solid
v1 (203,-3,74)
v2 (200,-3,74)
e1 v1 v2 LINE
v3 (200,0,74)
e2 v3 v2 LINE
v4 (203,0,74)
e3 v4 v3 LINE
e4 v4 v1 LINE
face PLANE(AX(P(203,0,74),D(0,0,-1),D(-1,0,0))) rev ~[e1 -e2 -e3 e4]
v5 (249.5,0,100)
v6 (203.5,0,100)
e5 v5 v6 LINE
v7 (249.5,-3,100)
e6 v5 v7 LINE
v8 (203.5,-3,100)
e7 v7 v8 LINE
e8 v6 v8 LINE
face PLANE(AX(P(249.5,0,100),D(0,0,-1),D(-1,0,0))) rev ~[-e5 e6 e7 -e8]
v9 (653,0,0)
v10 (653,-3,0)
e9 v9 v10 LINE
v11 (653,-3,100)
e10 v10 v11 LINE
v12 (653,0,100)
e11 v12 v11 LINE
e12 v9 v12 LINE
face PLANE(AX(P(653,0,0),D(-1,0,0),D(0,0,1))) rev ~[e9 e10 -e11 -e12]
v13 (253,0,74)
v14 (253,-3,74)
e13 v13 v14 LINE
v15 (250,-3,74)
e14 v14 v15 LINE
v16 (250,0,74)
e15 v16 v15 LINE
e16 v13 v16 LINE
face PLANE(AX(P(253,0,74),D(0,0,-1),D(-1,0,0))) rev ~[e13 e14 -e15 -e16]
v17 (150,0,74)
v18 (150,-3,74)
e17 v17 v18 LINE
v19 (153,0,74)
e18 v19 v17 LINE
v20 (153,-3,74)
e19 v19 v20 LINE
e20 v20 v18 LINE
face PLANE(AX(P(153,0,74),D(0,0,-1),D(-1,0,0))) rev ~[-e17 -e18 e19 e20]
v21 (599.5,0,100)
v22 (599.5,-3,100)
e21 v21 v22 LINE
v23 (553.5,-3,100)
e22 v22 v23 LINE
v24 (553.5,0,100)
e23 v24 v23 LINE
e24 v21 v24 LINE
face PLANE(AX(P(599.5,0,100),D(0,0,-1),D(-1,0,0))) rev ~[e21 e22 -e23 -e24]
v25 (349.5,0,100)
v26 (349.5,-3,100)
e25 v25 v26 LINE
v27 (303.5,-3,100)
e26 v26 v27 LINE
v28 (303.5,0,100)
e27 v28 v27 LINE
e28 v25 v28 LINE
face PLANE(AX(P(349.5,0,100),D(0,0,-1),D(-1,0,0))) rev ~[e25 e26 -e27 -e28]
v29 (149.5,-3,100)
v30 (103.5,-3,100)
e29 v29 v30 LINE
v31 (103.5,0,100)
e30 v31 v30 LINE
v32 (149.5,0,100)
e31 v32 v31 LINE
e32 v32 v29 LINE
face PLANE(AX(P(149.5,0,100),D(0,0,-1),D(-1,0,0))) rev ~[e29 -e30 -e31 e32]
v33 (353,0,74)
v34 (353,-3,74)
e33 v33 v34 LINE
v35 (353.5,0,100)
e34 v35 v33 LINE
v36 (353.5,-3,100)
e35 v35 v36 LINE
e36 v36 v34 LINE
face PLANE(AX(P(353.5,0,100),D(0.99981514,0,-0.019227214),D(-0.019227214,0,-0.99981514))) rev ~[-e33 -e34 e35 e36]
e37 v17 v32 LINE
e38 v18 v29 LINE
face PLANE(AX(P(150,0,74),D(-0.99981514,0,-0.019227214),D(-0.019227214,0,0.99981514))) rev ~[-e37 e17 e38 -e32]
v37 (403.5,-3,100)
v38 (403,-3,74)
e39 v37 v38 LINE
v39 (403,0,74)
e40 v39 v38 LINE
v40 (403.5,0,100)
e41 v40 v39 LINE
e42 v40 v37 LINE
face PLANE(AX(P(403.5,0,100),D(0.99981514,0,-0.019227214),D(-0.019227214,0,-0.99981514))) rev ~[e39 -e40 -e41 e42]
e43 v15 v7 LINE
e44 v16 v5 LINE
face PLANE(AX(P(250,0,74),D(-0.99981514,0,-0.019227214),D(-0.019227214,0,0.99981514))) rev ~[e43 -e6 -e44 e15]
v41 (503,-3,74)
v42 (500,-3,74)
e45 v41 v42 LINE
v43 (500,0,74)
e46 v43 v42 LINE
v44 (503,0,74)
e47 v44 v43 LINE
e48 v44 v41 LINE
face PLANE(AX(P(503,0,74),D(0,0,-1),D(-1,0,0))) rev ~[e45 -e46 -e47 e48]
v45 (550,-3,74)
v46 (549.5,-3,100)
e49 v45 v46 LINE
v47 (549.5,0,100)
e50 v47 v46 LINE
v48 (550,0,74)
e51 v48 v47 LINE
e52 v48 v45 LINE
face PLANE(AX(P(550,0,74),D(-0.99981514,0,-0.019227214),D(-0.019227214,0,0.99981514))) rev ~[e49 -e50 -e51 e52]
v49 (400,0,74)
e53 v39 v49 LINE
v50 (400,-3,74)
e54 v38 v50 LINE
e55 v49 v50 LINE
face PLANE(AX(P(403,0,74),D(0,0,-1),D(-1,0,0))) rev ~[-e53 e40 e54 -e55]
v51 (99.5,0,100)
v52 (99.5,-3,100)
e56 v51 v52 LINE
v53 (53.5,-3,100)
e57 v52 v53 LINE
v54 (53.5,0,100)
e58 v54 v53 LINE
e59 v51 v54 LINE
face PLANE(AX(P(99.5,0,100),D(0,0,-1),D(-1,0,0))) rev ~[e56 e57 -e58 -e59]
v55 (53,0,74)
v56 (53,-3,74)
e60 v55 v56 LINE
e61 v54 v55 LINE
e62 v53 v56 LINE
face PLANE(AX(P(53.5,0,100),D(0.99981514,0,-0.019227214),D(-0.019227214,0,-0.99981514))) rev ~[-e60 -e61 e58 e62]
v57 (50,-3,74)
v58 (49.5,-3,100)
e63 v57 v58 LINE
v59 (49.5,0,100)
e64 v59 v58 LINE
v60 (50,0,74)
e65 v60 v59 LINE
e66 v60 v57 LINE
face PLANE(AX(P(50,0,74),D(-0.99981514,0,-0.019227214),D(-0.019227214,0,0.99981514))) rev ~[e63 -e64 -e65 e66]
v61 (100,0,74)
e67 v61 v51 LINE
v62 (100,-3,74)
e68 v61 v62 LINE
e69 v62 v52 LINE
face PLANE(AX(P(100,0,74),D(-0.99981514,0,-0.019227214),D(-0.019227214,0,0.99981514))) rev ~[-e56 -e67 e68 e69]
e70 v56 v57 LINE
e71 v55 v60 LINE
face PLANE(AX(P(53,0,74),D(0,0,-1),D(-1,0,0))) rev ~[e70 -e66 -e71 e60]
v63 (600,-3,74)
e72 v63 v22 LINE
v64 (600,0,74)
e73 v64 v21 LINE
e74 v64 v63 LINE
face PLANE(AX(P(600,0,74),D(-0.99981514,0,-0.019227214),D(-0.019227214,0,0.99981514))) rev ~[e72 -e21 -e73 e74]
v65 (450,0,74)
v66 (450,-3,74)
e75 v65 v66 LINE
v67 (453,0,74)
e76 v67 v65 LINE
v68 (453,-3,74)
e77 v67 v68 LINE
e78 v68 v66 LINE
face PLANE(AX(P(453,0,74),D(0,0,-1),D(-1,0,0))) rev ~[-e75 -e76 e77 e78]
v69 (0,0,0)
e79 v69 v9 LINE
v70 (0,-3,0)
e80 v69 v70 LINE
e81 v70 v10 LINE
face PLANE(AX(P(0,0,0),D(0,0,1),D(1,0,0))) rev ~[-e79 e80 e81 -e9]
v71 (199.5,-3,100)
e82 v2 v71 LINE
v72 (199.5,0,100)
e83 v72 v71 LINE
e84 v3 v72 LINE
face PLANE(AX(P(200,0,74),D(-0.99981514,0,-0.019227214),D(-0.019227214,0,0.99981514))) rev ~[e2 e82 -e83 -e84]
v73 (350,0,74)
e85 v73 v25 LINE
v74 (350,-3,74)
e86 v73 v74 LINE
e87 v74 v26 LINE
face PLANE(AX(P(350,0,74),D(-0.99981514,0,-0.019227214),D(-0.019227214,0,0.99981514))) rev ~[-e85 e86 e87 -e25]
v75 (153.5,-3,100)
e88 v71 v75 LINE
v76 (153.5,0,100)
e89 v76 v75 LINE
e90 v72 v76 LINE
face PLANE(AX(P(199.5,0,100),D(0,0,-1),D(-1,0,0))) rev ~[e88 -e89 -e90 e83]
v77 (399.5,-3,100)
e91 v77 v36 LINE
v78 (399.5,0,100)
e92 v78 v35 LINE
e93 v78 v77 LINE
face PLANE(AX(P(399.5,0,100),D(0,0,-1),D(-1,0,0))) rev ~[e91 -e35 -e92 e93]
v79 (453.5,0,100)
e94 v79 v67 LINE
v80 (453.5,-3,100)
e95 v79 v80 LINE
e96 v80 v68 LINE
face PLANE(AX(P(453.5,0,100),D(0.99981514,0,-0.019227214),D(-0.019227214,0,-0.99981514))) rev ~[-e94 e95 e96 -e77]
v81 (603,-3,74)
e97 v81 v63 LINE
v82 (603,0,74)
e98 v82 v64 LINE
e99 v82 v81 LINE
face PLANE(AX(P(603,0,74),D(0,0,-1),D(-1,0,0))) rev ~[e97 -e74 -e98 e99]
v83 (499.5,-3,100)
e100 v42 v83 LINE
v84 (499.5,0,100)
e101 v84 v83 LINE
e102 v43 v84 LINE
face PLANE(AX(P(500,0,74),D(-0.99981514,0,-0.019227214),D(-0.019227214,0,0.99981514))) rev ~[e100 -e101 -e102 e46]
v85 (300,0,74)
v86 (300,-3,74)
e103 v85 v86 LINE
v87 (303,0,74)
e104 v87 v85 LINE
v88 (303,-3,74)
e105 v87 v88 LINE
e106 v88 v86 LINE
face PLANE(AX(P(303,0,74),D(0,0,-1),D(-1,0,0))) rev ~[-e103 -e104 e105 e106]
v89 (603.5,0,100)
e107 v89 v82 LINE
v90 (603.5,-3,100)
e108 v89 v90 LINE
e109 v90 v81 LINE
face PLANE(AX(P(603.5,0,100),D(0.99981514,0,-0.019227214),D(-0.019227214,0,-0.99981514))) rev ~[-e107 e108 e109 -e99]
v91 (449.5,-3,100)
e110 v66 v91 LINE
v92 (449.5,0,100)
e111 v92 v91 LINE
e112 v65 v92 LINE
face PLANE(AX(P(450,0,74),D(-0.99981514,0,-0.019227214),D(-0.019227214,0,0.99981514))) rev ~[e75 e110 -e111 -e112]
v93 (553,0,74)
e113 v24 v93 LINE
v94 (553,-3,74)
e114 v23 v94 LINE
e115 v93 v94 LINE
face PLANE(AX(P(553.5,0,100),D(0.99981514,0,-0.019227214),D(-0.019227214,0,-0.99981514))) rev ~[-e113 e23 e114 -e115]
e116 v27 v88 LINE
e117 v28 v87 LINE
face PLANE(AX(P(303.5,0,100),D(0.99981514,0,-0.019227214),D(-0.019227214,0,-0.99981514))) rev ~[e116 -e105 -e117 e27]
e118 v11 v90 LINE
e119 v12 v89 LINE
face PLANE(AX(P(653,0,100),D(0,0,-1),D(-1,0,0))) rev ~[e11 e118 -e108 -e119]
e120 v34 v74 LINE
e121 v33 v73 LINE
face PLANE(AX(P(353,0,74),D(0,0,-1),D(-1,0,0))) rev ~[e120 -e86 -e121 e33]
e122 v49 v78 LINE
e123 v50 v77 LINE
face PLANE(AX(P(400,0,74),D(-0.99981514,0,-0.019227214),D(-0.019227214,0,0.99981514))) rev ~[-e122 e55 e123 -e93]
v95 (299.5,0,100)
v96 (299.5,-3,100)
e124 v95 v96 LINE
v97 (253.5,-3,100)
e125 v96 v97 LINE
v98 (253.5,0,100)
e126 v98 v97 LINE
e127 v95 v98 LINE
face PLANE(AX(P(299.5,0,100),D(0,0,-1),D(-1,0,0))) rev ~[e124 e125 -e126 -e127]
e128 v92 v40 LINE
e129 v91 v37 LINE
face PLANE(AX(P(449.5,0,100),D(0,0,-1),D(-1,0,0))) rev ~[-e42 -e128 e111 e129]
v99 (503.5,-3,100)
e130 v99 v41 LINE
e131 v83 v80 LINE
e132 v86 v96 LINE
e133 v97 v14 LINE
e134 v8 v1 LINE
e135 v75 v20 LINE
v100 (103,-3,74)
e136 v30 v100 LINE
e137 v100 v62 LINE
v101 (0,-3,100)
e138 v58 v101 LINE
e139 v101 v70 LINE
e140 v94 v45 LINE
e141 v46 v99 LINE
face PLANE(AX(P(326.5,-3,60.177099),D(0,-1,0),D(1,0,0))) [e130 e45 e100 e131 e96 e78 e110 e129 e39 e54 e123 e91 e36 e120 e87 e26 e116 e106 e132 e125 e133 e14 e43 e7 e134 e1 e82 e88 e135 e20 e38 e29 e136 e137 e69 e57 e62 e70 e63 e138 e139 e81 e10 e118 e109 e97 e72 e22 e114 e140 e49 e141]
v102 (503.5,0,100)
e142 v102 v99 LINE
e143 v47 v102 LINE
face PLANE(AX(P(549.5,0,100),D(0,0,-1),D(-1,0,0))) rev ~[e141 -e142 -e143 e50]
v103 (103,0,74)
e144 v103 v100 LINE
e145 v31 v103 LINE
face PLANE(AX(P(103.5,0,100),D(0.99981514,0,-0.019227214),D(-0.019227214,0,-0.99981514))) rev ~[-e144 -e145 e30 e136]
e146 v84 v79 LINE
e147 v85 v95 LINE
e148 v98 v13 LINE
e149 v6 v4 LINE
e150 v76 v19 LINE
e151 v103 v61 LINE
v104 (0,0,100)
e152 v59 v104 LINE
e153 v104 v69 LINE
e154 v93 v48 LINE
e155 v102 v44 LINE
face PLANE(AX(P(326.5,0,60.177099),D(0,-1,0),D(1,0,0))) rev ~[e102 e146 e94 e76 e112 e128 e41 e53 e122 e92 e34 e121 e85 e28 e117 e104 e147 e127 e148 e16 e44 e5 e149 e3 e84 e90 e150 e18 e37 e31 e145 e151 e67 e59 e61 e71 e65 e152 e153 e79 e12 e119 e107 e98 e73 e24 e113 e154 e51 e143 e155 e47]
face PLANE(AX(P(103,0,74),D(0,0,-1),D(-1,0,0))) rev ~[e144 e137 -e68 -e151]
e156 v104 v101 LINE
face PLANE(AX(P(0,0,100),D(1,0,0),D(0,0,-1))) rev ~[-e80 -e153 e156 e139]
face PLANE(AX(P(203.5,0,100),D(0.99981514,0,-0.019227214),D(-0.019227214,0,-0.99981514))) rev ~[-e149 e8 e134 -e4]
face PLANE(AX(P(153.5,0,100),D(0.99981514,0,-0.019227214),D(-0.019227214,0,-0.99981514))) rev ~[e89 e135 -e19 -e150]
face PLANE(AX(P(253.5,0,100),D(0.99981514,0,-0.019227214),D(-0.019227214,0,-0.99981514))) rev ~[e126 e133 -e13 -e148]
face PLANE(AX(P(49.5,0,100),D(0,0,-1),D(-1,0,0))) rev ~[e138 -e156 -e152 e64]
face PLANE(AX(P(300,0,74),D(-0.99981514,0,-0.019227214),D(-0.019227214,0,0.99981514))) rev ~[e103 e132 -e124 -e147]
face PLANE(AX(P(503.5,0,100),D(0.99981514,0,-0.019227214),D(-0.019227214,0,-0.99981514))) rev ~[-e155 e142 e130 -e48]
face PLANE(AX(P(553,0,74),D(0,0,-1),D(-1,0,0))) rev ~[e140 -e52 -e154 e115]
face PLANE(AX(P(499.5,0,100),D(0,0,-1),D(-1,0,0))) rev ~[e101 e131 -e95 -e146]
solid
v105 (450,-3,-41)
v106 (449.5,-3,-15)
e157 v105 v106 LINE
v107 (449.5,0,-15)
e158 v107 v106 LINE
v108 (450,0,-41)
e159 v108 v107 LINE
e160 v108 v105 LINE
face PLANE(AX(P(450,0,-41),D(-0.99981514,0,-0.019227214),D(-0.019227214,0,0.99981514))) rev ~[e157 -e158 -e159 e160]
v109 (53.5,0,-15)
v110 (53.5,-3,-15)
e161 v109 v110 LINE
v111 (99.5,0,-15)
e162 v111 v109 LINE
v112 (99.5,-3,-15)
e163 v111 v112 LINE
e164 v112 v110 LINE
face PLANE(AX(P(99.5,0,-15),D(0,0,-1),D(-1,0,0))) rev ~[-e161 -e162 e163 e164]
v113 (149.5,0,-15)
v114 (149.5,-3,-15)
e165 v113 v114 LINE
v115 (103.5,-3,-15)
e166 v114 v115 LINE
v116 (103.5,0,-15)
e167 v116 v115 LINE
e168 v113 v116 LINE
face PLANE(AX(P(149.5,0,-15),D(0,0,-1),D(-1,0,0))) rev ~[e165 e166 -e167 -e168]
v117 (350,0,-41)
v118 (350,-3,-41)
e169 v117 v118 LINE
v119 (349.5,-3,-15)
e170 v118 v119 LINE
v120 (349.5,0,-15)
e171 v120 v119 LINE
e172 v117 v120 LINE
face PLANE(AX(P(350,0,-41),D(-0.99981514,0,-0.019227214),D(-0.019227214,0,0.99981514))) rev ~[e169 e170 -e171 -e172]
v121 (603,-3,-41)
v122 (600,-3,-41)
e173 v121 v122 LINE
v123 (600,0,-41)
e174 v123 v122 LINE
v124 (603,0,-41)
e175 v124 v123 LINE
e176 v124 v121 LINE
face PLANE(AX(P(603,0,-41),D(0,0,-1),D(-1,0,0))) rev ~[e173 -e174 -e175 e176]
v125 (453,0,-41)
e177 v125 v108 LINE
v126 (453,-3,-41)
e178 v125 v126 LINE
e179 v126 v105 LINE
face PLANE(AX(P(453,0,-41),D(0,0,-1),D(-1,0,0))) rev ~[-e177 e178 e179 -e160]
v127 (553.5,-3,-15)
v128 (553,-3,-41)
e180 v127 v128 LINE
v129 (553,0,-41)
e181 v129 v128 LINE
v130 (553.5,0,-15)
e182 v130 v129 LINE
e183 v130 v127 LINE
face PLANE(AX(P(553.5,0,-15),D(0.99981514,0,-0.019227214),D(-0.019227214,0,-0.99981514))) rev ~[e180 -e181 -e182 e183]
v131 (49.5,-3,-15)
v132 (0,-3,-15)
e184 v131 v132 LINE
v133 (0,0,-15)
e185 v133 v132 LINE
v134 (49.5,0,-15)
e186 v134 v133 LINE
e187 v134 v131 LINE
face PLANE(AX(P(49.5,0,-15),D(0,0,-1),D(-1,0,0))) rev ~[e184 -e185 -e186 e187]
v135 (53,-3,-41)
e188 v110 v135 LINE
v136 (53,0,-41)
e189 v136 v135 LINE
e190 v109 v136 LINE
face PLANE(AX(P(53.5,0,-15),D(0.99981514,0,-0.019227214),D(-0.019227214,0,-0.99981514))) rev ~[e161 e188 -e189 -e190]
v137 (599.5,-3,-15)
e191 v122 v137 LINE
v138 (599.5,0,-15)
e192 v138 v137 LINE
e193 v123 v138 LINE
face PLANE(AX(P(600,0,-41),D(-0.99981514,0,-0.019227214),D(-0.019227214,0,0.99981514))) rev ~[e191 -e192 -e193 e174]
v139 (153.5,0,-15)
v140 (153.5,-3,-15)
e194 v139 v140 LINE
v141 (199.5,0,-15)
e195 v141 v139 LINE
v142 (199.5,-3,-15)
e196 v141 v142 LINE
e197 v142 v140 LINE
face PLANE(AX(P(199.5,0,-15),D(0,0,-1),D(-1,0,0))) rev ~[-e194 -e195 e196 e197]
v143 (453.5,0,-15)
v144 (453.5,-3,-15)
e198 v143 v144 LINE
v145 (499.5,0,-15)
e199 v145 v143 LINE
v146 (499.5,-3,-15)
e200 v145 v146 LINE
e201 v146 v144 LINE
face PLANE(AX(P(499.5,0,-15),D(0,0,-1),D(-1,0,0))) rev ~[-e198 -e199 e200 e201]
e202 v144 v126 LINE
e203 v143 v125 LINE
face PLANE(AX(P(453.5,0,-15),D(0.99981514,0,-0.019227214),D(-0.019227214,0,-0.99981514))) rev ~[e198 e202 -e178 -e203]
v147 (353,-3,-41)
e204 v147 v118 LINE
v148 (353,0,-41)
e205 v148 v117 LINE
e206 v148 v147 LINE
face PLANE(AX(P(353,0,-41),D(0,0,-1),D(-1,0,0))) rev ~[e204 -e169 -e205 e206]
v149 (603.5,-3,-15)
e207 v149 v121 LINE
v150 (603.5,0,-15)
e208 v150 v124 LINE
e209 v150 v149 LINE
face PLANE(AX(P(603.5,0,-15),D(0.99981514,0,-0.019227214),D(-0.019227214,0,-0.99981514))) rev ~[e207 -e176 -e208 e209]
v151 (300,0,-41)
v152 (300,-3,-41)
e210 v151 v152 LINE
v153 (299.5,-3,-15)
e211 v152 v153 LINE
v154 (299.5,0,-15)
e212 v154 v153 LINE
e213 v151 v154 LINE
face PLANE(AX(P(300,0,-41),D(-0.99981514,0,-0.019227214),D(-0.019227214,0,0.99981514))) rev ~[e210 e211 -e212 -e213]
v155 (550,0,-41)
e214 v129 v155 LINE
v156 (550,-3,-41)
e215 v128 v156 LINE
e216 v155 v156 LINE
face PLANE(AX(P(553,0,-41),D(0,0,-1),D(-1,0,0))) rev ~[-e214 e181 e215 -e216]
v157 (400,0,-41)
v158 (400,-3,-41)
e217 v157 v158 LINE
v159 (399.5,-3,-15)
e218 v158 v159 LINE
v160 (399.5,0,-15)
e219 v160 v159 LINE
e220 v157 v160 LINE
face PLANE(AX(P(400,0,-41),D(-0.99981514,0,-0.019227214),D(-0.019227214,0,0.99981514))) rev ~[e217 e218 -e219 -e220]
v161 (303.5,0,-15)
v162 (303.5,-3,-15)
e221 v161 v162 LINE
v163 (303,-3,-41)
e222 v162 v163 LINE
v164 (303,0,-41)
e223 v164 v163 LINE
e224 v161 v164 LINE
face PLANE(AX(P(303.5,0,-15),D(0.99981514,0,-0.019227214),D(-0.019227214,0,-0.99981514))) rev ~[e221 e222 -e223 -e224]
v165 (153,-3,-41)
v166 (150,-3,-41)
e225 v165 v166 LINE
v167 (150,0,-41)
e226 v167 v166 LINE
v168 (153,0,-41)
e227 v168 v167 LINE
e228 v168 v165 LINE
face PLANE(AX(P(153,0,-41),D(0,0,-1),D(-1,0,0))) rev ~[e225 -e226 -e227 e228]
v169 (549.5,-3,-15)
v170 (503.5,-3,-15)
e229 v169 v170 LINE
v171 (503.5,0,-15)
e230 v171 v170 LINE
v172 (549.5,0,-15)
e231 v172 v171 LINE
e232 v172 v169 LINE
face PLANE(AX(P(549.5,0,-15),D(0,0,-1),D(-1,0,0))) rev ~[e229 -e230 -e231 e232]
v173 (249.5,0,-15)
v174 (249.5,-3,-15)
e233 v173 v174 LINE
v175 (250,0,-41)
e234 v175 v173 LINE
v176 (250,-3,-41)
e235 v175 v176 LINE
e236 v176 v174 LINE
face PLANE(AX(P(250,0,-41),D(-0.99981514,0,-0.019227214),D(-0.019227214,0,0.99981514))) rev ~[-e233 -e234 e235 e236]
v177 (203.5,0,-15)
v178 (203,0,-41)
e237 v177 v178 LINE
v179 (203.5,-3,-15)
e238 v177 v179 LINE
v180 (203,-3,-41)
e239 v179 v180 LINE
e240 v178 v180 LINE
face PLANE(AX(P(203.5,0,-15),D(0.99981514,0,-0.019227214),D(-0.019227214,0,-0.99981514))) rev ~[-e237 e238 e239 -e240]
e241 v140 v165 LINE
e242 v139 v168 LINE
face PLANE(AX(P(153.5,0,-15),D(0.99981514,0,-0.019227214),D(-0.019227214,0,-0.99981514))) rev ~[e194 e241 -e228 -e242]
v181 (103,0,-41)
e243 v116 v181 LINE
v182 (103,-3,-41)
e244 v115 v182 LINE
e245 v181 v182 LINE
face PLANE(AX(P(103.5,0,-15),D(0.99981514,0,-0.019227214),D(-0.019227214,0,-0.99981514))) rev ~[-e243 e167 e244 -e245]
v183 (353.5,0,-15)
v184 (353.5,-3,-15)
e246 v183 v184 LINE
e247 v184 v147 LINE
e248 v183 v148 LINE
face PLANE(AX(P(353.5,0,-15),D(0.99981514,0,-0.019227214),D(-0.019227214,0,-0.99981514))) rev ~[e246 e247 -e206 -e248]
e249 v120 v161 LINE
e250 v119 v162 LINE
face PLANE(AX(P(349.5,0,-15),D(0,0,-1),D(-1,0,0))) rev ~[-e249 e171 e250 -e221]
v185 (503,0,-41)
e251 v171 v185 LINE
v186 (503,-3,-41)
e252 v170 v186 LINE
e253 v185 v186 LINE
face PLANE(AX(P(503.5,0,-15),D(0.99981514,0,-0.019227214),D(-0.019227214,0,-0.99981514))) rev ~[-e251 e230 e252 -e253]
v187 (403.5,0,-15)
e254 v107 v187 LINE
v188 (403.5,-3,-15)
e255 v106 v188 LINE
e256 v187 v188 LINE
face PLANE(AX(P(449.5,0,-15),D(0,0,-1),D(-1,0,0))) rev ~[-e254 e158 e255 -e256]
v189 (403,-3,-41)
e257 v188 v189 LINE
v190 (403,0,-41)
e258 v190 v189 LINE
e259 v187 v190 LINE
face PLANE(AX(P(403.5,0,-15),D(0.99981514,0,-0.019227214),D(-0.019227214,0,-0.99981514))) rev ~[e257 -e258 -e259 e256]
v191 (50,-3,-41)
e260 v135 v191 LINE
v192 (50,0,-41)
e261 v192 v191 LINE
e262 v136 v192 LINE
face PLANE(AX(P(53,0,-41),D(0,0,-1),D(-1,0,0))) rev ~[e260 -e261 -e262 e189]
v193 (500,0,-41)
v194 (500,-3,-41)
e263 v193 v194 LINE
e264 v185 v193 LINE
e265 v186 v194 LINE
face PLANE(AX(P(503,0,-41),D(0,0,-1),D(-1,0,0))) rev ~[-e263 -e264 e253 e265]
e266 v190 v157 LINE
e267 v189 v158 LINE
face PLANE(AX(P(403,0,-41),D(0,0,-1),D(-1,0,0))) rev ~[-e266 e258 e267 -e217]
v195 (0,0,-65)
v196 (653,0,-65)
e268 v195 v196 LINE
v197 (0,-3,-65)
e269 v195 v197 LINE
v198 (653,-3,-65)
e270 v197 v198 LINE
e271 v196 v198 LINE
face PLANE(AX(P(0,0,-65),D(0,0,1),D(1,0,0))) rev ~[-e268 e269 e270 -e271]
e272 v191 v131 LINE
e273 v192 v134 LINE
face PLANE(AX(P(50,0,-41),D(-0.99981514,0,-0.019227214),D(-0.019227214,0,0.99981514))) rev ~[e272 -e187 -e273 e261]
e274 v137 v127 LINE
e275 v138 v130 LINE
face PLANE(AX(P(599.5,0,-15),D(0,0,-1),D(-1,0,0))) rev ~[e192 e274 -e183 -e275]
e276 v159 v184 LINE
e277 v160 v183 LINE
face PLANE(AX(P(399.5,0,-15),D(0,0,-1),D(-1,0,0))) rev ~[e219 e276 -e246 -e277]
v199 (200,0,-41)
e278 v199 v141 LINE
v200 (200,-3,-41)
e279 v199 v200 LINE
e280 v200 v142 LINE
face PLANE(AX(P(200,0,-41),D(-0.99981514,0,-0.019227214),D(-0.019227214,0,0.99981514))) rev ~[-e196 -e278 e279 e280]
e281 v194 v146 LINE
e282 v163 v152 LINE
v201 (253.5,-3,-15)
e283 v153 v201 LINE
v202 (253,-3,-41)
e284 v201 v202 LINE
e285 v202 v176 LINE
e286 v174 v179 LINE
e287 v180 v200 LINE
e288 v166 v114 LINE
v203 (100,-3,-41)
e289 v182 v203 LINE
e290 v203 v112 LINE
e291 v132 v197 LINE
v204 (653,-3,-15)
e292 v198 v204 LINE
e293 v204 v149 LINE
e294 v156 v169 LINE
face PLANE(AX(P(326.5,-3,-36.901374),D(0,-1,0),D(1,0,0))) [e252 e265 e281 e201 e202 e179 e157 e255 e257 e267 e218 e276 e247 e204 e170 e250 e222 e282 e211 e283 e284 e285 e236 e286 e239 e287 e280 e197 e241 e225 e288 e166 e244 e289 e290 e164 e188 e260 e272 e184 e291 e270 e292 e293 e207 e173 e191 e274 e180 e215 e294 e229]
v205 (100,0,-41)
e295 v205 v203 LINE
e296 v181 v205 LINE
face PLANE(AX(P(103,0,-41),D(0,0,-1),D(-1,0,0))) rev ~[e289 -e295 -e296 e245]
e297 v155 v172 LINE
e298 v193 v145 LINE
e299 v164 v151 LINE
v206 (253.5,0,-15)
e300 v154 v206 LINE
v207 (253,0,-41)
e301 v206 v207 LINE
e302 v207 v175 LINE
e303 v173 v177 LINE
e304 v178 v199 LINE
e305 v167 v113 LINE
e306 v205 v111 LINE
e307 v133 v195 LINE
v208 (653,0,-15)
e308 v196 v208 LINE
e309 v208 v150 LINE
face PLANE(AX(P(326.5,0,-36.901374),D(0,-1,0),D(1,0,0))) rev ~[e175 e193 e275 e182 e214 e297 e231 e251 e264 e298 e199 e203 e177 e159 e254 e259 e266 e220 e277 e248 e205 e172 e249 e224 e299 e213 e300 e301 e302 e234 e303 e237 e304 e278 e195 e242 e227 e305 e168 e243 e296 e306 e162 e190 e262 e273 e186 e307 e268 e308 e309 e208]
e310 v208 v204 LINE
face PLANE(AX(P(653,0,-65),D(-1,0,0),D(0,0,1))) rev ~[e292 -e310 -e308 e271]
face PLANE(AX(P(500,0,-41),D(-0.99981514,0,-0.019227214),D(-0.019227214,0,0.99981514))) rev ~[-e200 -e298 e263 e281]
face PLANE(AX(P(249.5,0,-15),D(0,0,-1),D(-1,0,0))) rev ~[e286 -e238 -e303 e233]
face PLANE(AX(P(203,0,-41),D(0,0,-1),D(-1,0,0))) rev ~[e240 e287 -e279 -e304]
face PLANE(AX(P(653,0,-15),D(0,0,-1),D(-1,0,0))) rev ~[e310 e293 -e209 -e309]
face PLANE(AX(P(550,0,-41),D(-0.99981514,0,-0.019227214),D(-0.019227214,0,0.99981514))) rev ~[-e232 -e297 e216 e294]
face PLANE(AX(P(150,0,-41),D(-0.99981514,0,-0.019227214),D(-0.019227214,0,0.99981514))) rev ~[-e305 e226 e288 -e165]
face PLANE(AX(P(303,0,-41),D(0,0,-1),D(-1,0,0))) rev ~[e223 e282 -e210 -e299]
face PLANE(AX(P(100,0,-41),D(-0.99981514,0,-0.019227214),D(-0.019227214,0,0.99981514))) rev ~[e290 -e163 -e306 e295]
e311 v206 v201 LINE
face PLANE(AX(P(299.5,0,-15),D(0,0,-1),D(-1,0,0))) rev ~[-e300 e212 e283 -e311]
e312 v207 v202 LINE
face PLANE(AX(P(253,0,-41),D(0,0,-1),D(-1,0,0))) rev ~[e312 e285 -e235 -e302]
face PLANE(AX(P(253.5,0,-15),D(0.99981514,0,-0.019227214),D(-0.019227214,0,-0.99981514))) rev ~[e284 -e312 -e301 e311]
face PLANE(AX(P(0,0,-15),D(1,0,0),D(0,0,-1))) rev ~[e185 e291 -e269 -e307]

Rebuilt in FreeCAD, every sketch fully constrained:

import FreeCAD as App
import Part
import Sketcher

V = App.Vector
Q = App.Units.Quantity

doc = App.newDocument("Part")
body = doc.addObject("PartDesign::Body", "Body")

sketch1 = body.newObject("Sketcher::SketchObject", "Sketch")
sketch1.AttachmentSupport = (doc.getObject("XZ_Plane"), [""])
sketch1.MapMode = "FlatFace"
sketch1.addGeometry(Part.LineSegment(V(0, 100, 0), V(0, 0, 0)), False)
sketch1.addGeometry(Part.LineSegment(V(0, 0, 0), V(653, 0, 0)), False)
sketch1.addGeometry(Part.LineSegment(V(653, 0, 0), V(653, 100, 0)), False)
sketch1.addGeometry(Part.LineSegment(V(653, 100, 0), V(603.5, 100, 0)), False)
sketch1.addGeometry(Part.LineSegment(V(603.5, 100, 0), V(603, 74, 0)), False)
sketch1.addGeometry(Part.LineSegment(V(603, 74, 0), V(600, 74, 0)), False)
sketch1.addGeometry(Part.LineSegment(V(600, 74, 0), V(599.5, 100, 0)), False)
sketch1.addGeometry(Part.LineSegment(V(599.5, 100, 0), V(553.5, 100, 0)), False)
sketch1.addGeometry(Part.LineSegment(V(553.5, 100, 0), V(553, 74, 0)), False)
sketch1.addGeometry(Part.LineSegment(V(553, 74, 0), V(550, 74, 0)), False)
sketch1.addGeometry(Part.LineSegment(V(550, 74, 0), V(549.5, 100, 0)), False)
sketch1.addGeometry(Part.LineSegment(V(549.5, 100, 0), V(503.5, 100, 0)), False)
sketch1.addGeometry(Part.LineSegment(V(503.5, 100, 0), V(503, 74, 0)), False)
sketch1.addGeometry(Part.LineSegment(V(503, 74, 0), V(500, 74, 0)), False)
sketch1.addGeometry(Part.LineSegment(V(500, 74, 0), V(499.5, 100, 0)), False)
sketch1.addGeometry(Part.LineSegment(V(499.5, 100, 0), V(453.5, 100, 0)), False)
sketch1.addGeometry(Part.LineSegment(V(453.5, 100, 0), V(453, 74, 0)), False)
sketch1.addGeometry(Part.LineSegment(V(453, 74, 0), V(450, 74, 0)), False)
sketch1.addGeometry(Part.LineSegment(V(450, 74, 0), V(449.5, 100, 0)), False)
sketch1.addGeometry(Part.LineSegment(V(449.5, 100, 0), V(403.5, 100, 0)), False)
sketch1.addGeometry(Part.LineSegment(V(403.5, 100, 0), V(403, 74, 0)), False)
sketch1.addGeometry(Part.LineSegment(V(403, 74, 0), V(400, 74, 0)), False)
sketch1.addGeometry(Part.LineSegment(V(400, 74, 0), V(399.5, 100, 0)), False)
sketch1.addGeometry(Part.LineSegment(V(399.5, 100, 0), V(353.5, 100, 0)), False)
sketch1.addGeometry(Part.LineSegment(V(353.5, 100, 0), V(353, 74, 0)), False)
sketch1.addGeometry(Part.LineSegment(V(353, 74, 0), V(350, 74, 0)), False)
sketch1.addGeometry(Part.LineSegment(V(350, 74, 0), V(349.5, 100, 0)), False)
sketch1.addGeometry(Part.LineSegment(V(349.5, 100, 0), V(303.5, 100, 0)), False)
sketch1.addGeometry(Part.LineSegment(V(303.5, 100, 0), V(303, 74, 0)), False)
sketch1.addGeometry(Part.LineSegment(V(303, 74, 0), V(300, 74, 0)), False)
sketch1.addGeometry(Part.LineSegment(V(300, 74, 0), V(299.5, 100, 0)), False)
sketch1.addGeometry(Part.LineSegment(V(299.5, 100, 0), V(253.5, 100, 0)), False)
sketch1.addGeometry(Part.LineSegment(V(253.5, 100, 0), V(253, 74, 0)), False)
sketch1.addGeometry(Part.LineSegment(V(253, 74, 0), V(250, 74, 0)), False)
sketch1.addGeometry(Part.LineSegment(V(250, 74, 0), V(249.5, 100, 0)), False)
sketch1.addGeometry(Part.LineSegment(V(249.5, 100, 0), V(203.5, 100, 0)), False)
sketch1.addGeometry(Part.LineSegment(V(203.5, 100, 0), V(203, 74, 0)), False)
sketch1.addGeometry(Part.LineSegment(V(203, 74, 0), V(200, 74, 0)), False)
sketch1.addGeometry(Part.LineSegment(V(200, 74, 0), V(199.5, 100, 0)), False)
sketch1.addGeometry(Part.LineSegment(V(199.5, 100, 0), V(153.5, 100, 0)), False)
sketch1.addGeometry(Part.LineSegment(V(153.5, 100, 0), V(153, 74, 0)), False)
sketch1.addGeometry(Part.LineSegment(V(153, 74, 0), V(150, 74, 0)), False)
sketch1.addGeometry(Part.LineSegment(V(150, 74, 0), V(149.5, 100, 0)), False)
sketch1.addGeometry(Part.LineSegment(V(149.5, 100, 0), V(103.5, 100, 0)), False)
sketch1.addGeometry(Part.LineSegment(V(103.5, 100, 0), V(103, 74, 0)), False)
sketch1.addGeometry(Part.LineSegment(V(103, 74, 0), V(100, 74, 0)), False)
sketch1.addGeometry(Part.LineSegment(V(100, 74, 0), V(99.5, 100, 0)), False)
sketch1.addGeometry(Part.LineSegment(V(99.5, 100, 0), V(53.5, 100, 0)), False)
sketch1.addGeometry(Part.LineSegment(V(53.5, 100, 0), V(53, 74, 0)), False)
sketch1.addGeometry(Part.LineSegment(V(53, 74, 0), V(50, 74, 0)), False)
sketch1.addGeometry(Part.LineSegment(V(50, 74, 0), V(49.5, 100, 0)), False)
sketch1.addGeometry(Part.LineSegment(V(49.5, 100, 0), V(0, 100, 0)), False)
sketch1.addConstraint(Sketcher.Constraint("Coincident", 0, 2, 1, 1))
sketch1.addConstraint(Sketcher.Constraint("Coincident", 1, 2, 2, 1))
sketch1.addConstraint(Sketcher.Constraint("Coincident", 2, 2, 3, 1))
sketch1.addConstraint(Sketcher.Constraint("Coincident", 3, 2, 4, 1))
sketch1.addConstraint(Sketcher.Constraint("Coincident", 4, 2, 5, 1))
sketch1.addConstraint(Sketcher.Constraint("Coincident", 5, 2, 6, 1))
sketch1.addConstraint(Sketcher.Constraint("Coincident", 6, 2, 7, 1))
sketch1.addConstraint(Sketcher.Constraint("Coincident", 7, 2, 8, 1))
sketch1.addConstraint(Sketcher.Constraint("Coincident", 8, 2, 9, 1))
sketch1.addConstraint(Sketcher.Constraint("Coincident", 9, 2, 10, 1))
sketch1.addConstraint(Sketcher.Constraint("Coincident", 10, 2, 11, 1))
sketch1.addConstraint(Sketcher.Constraint("Coincident", 11, 2, 12, 1))
sketch1.addConstraint(Sketcher.Constraint("Coincident", 12, 2, 13, 1))
sketch1.addConstraint(Sketcher.Constraint("Coincident", 13, 2, 14, 1))
sketch1.addConstraint(Sketcher.Constraint("Coincident", 14, 2, 15, 1))
sketch1.addConstraint(Sketcher.Constraint("Coincident", 15, 2, 16, 1))
sketch1.addConstraint(Sketcher.Constraint("Coincident", 16, 2, 17, 1))
sketch1.addConstraint(Sketcher.Constraint("Coincident", 17, 2, 18, 1))
sketch1.addConstraint(Sketcher.Constraint("Coincident", 18, 2, 19, 1))
sketch1.addConstraint(Sketcher.Constraint("Coincident", 19, 2, 20, 1))
sketch1.addConstraint(Sketcher.Constraint("Coincident", 20, 2, 21, 1))
sketch1.addConstraint(Sketcher.Constraint("Coincident", 21, 2, 22, 1))
sketch1.addConstraint(Sketcher.Constraint("Coincident", 22, 2, 23, 1))
sketch1.addConstraint(Sketcher.Constraint("Coincident", 23, 2, 24, 1))
sketch1.addConstraint(Sketcher.Constraint("Coincident", 24, 2, 25, 1))
sketch1.addConstraint(Sketcher.Constraint("Coincident", 25, 2, 26, 1))
sketch1.addConstraint(Sketcher.Constraint("Coincident", 26, 2, 27, 1))
sketch1.addConstraint(Sketcher.Constraint("Coincident", 27, 2, 28, 1))
sketch1.addConstraint(Sketcher.Constraint("Coincident", 28, 2, 29, 1))
sketch1.addConstraint(Sketcher.Constraint("Coincident", 29, 2, 30, 1))
sketch1.addConstraint(Sketcher.Constraint("Coincident", 30, 2, 31, 1))
sketch1.addConstraint(Sketcher.Constraint("Coincident", 31, 2, 32, 1))
sketch1.addConstraint(Sketcher.Constraint("Coincident", 32, 2, 33, 1))
sketch1.addConstraint(Sketcher.Constraint("Coincident", 33, 2, 34, 1))
sketch1.addConstraint(Sketcher.Constraint("Coincident", 34, 2, 35, 1))
sketch1.addConstraint(Sketcher.Constraint("Coincident", 35, 2, 36, 1))
sketch1.addConstraint(Sketcher.Constraint("Coincident", 36, 2, 37, 1))
sketch1.addConstraint(Sketcher.Constraint("Coincident", 37, 2, 38, 1))
sketch1.addConstraint(Sketcher.Constraint("Coincident", 38, 2, 39, 1))
sketch1.addConstraint(Sketcher.Constraint("Coincident", 39, 2, 40, 1))
sketch1.addConstraint(Sketcher.Constraint("Coincident", 40, 2, 41, 1))
sketch1.addConstraint(Sketcher.Constraint("Coincident", 41, 2, 42, 1))
sketch1.addConstraint(Sketcher.Constraint("Coincident", 42, 2, 43, 1))
sketch1.addConstraint(Sketcher.Constraint("Coincident", 43, 2, 44, 1))
sketch1.addConstraint(Sketcher.Constraint("Coincident", 44, 2, 45, 1))
sketch1.addConstraint(Sketcher.Constraint("Coincident", 45, 2, 46, 1))
sketch1.addConstraint(Sketcher.Constraint("Coincident", 46, 2, 47, 1))
sketch1.addConstraint(Sketcher.Constraint("Coincident", 47, 2, 48, 1))
sketch1.addConstraint(Sketcher.Constraint("Coincident", 48, 2, 49, 1))
sketch1.addConstraint(Sketcher.Constraint("Coincident", 49, 2, 50, 1))
sketch1.addConstraint(Sketcher.Constraint("Coincident", 50, 2, 51, 1))
sketch1.addConstraint(Sketcher.Constraint("Coincident", 51, 2, 0, 1))
sketch1.addConstraint(Sketcher.Constraint("Vertical", 0))
sketch1.addConstraint(Sketcher.Constraint("Horizontal", 1))
sketch1.addConstraint(Sketcher.Constraint("Vertical", 2))
sketch1.addConstraint(Sketcher.Constraint("Horizontal", 3))
sketch1.addConstraint(Sketcher.Constraint("Horizontal", 5))
sketch1.addConstraint(Sketcher.Constraint("Horizontal", 7))
sketch1.addConstraint(Sketcher.Constraint("Horizontal", 9))
sketch1.addConstraint(Sketcher.Constraint("Horizontal", 11))
sketch1.addConstraint(Sketcher.Constraint("Horizontal", 13))
sketch1.addConstraint(Sketcher.Constraint("Horizontal", 15))
sketch1.addConstraint(Sketcher.Constraint("Horizontal", 17))
sketch1.addConstraint(Sketcher.Constraint("Horizontal", 19))
sketch1.addConstraint(Sketcher.Constraint("Horizontal", 21))
sketch1.addConstraint(Sketcher.Constraint("Horizontal", 23))
sketch1.addConstraint(Sketcher.Constraint("Horizontal", 25))
sketch1.addConstraint(Sketcher.Constraint("Horizontal", 27))
sketch1.addConstraint(Sketcher.Constraint("Horizontal", 29))
sketch1.addConstraint(Sketcher.Constraint("Horizontal", 31))
sketch1.addConstraint(Sketcher.Constraint("Horizontal", 33))
sketch1.addConstraint(Sketcher.Constraint("Horizontal", 35))
sketch1.addConstraint(Sketcher.Constraint("Horizontal", 37))
sketch1.addConstraint(Sketcher.Constraint("Horizontal", 39))
sketch1.addConstraint(Sketcher.Constraint("Horizontal", 41))
sketch1.addConstraint(Sketcher.Constraint("Horizontal", 43))
sketch1.addConstraint(Sketcher.Constraint("Horizontal", 45))
sketch1.addConstraint(Sketcher.Constraint("Horizontal", 47))
sketch1.addConstraint(Sketcher.Constraint("Horizontal", 49))
sketch1.addConstraint(Sketcher.Constraint("Horizontal", 51))
sketch1.addConstraint(Sketcher.Constraint("Coincident", 0, 2, -1, 1))
sketch1.addConstraint(Sketcher.Constraint("Parallel", 4, 8))
sketch1.addConstraint(Sketcher.Constraint("Parallel", 6, 10))
sketch1.addConstraint(Sketcher.Constraint("Parallel", 8, 12))
sketch1.addConstraint(Sketcher.Constraint("Parallel", 10, 14))
sketch1.addConstraint(Sketcher.Constraint("Parallel", 12, 16))
sketch1.addConstraint(Sketcher.Constraint("Parallel", 14, 18))
sketch1.addConstraint(Sketcher.Constraint("Parallel", 16, 20))
sketch1.addConstraint(Sketcher.Constraint("Parallel", 18, 22))
sketch1.addConstraint(Sketcher.Constraint("Parallel", 20, 24))
sketch1.addConstraint(Sketcher.Constraint("Parallel", 22, 26))
sketch1.addConstraint(Sketcher.Constraint("Parallel", 24, 28))
sketch1.addConstraint(Sketcher.Constraint("Parallel", 26, 30))
sketch1.addConstraint(Sketcher.Constraint("Parallel", 28, 32))
sketch1.addConstraint(Sketcher.Constraint("Parallel", 30, 34))
sketch1.addConstraint(Sketcher.Constraint("Parallel", 32, 36))
sketch1.addConstraint(Sketcher.Constraint("Parallel", 34, 38))
sketch1.addConstraint(Sketcher.Constraint("Parallel", 36, 40))
sketch1.addConstraint(Sketcher.Constraint("Parallel", 38, 42))
sketch1.addConstraint(Sketcher.Constraint("Parallel", 40, 44))
sketch1.addConstraint(Sketcher.Constraint("Parallel", 42, 46))
sketch1.addConstraint(Sketcher.Constraint("Parallel", 44, 48))
sketch1.addConstraint(Sketcher.Constraint("Parallel", 46, 50))
sketch1.addConstraint(Sketcher.Constraint("Horizontal", 3, 2, 6, 2))
sketch1.addConstraint(Sketcher.Constraint("Horizontal", 5, 2, 8, 2))
sketch1.addConstraint(Sketcher.Constraint("Horizontal", 7, 2, 10, 2))
sketch1.addConstraint(Sketcher.Constraint("Horizontal", 9, 2, 12, 2))
sketch1.addConstraint(Sketcher.Constraint("Horizontal", 11, 2, 14, 2))
sketch1.addConstraint(Sketcher.Constraint("Horizontal", 13, 2, 16, 2))
sketch1.addConstraint(Sketcher.Constraint("Horizontal", 15, 2, 18, 2))
sketch1.addConstraint(Sketcher.Constraint("Horizontal", 17, 2, 20, 2))
sketch1.addConstraint(Sketcher.Constraint("Horizontal", 19, 2, 22, 2))
sketch1.addConstraint(Sketcher.Constraint("Horizontal", 21, 2, 24, 2))
sketch1.addConstraint(Sketcher.Constraint("Horizontal", 23, 2, 26, 2))
sketch1.addConstraint(Sketcher.Constraint("Horizontal", 25, 2, 28, 2))
sketch1.addConstraint(Sketcher.Constraint("Horizontal", 27, 2, 30, 2))
sketch1.addConstraint(Sketcher.Constraint("Horizontal", 29, 2, 32, 2))
sketch1.addConstraint(Sketcher.Constraint("Horizontal", 31, 2, 34, 2))
sketch1.addConstraint(Sketcher.Constraint("Horizontal", 33, 2, 36, 2))
sketch1.addConstraint(Sketcher.Constraint("Horizontal", 35, 2, 38, 2))
sketch1.addConstraint(Sketcher.Constraint("Horizontal", 37, 2, 40, 2))
sketch1.addConstraint(Sketcher.Constraint("Horizontal", 39, 2, 42, 2))
sketch1.addConstraint(Sketcher.Constraint("Horizontal", 41, 2, 44, 2))
sketch1.addConstraint(Sketcher.Constraint("Horizontal", 43, 2, 46, 2))
sketch1.addConstraint(Sketcher.Constraint("Horizontal", 45, 2, 48, 2))
sketch1.addConstraint(Sketcher.Constraint("Horizontal", 47, 2, 50, 2))
sketch1.addConstraint(Sketcher.Constraint("Equal", 5, 9))
sketch1.addConstraint(Sketcher.Constraint("Equal", 7, 11))
sketch1.addConstraint(Sketcher.Constraint("Equal", 9, 13))
sketch1.addConstraint(Sketcher.Constraint("Equal", 11, 15))
sketch1.addConstraint(Sketcher.Constraint("Equal", 13, 17))
sketch1.addConstraint(Sketcher.Constraint("Equal", 15, 19))
sketch1.addConstraint(Sketcher.Constraint("Equal", 17, 21))
sketch1.addConstraint(Sketcher.Constraint("Equal", 19, 23))
sketch1.addConstraint(Sketcher.Constraint("Equal", 21, 25))
sketch1.addConstraint(Sketcher.Constraint("Equal", 23, 27))
sketch1.addConstraint(Sketcher.Constraint("Equal", 25, 29))
sketch1.addConstraint(Sketcher.Constraint("Equal", 27, 31))
sketch1.addConstraint(Sketcher.Constraint("Equal", 29, 33))
sketch1.addConstraint(Sketcher.Constraint("Equal", 31, 35))
sketch1.addConstraint(Sketcher.Constraint("Equal", 33, 37))
sketch1.addConstraint(Sketcher.Constraint("Equal", 35, 39))
sketch1.addConstraint(Sketcher.Constraint("Equal", 37, 41))
sketch1.addConstraint(Sketcher.Constraint("Equal", 39, 43))
sketch1.addConstraint(Sketcher.Constraint("Equal", 41, 45))
sketch1.addConstraint(Sketcher.Constraint("Equal", 43, 47))
sketch1.addConstraint(Sketcher.Constraint("Equal", 45, 49))
sketch1.addConstraint(Sketcher.Constraint("Equal", 3, 51))
sketch1.addConstraint(Sketcher.Constraint("Equal", 4, 6))
sketch1.addConstraint(Sketcher.Constraint("DistanceX", 1, 1, 1, 2, Q("653 mm")))
sketch1.addConstraint(Sketcher.Constraint("DistanceX", 5, 2, 5, 1, Q("3 mm")))
sketch1.addConstraint(Sketcher.Constraint("DistanceX", 7, 2, 7, 1, Q("46 mm")))
sketch1.addConstraint(Sketcher.Constraint("DistanceY", 0, 2, 0, 1, Q("100 mm")))
sketch1.addConstraint(Sketcher.Constraint("DistanceX", 3, 2, 3, 1, Q("49.5 mm")))
sketch1.addConstraint(Sketcher.Constraint("DistanceY", -1, 1, 4, 2, Q("74 mm")))
pad1 = body.newObject("PartDesign::Pad", "Pad")
pad1.Profile = sketch1
pad1.Length = 3
body2 = doc.addObject("PartDesign::Body", "Body001")

sketch2 = body2.newObject("Sketcher::SketchObject", "Sketch001")
sketch2.AttachmentSupport = (doc.getObject("XZ_Plane001"), [""])
sketch2.MapMode = "FlatFace"
sketch2.addGeometry(Part.LineSegment(V(0, -15, 0), V(0, -65, 0)), False)
sketch2.addGeometry(Part.LineSegment(V(0, -65, 0), V(653, -65, 0)), False)
sketch2.addGeometry(Part.LineSegment(V(653, -65, 0), V(653, -15, 0)), False)
sketch2.addGeometry(Part.LineSegment(V(653, -15, 0), V(603.5, -15, 0)), False)
sketch2.addGeometry(Part.LineSegment(V(603.5, -15, 0), V(603, -41, 0)), False)
sketch2.addGeometry(Part.LineSegment(V(603, -41, 0), V(600, -41, 0)), False)
sketch2.addGeometry(Part.LineSegment(V(600, -41, 0), V(599.5, -15, 0)), False)
sketch2.addGeometry(Part.LineSegment(V(599.5, -15, 0), V(553.5, -15, 0)), False)
sketch2.addGeometry(Part.LineSegment(V(553.5, -15, 0), V(553, -41, 0)), False)
sketch2.addGeometry(Part.LineSegment(V(553, -41, 0), V(550, -41, 0)), False)
sketch2.addGeometry(Part.LineSegment(V(550, -41, 0), V(549.5, -15, 0)), False)
sketch2.addGeometry(Part.LineSegment(V(549.5, -15, 0), V(503.5, -15, 0)), False)
sketch2.addGeometry(Part.LineSegment(V(503.5, -15, 0), V(503, -41, 0)), False)
sketch2.addGeometry(Part.LineSegment(V(503, -41, 0), V(500, -41, 0)), False)
sketch2.addGeometry(Part.LineSegment(V(500, -41, 0), V(499.5, -15, 0)), False)
sketch2.addGeometry(Part.LineSegment(V(499.5, -15, 0), V(453.5, -15, 0)), False)
sketch2.addGeometry(Part.LineSegment(V(453.5, -15, 0), V(453, -41, 0)), False)
sketch2.addGeometry(Part.LineSegment(V(453, -41, 0), V(450, -41, 0)), False)
sketch2.addGeometry(Part.LineSegment(V(450, -41, 0), V(449.5, -15, 0)), False)
sketch2.addGeometry(Part.LineSegment(V(449.5, -15, 0), V(403.5, -15, 0)), False)
sketch2.addGeometry(Part.LineSegment(V(403.5, -15, 0), V(403, -41, 0)), False)
sketch2.addGeometry(Part.LineSegment(V(403, -41, 0), V(400, -41, 0)), False)
sketch2.addGeometry(Part.LineSegment(V(400, -41, 0), V(399.5, -15, 0)), False)
sketch2.addGeometry(Part.LineSegment(V(399.5, -15, 0), V(353.5, -15, 0)), False)
sketch2.addGeometry(Part.LineSegment(V(353.5, -15, 0), V(353, -41, 0)), False)
sketch2.addGeometry(Part.LineSegment(V(353, -41, 0), V(350, -41, 0)), False)
sketch2.addGeometry(Part.LineSegment(V(350, -41, 0), V(349.5, -15, 0)), False)
sketch2.addGeometry(Part.LineSegment(V(349.5, -15, 0), V(303.5, -15, 0)), False)
sketch2.addGeometry(Part.LineSegment(V(303.5, -15, 0), V(303, -41, 0)), False)
sketch2.addGeometry(Part.LineSegment(V(303, -41, 0), V(300, -41, 0)), False)
sketch2.addGeometry(Part.LineSegment(V(300, -41, 0), V(299.5, -15, 0)), False)
sketch2.addGeometry(Part.LineSegment(V(299.5, -15, 0), V(253.5, -15, 0)), False)
sketch2.addGeometry(Part.LineSegment(V(253.5, -15, 0), V(253, -41, 0)), False)
sketch2.addGeometry(Part.LineSegment(V(253, -41, 0), V(250, -41, 0)), False)
sketch2.addGeometry(Part.LineSegment(V(250, -41, 0), V(249.5, -15, 0)), False)
sketch2.addGeometry(Part.LineSegment(V(249.5, -15, 0), V(203.5, -15, 0)), False)
sketch2.addGeometry(Part.LineSegment(V(203.5, -15, 0), V(203, -41, 0)), False)
sketch2.addGeometry(Part.LineSegment(V(203, -41, 0), V(200, -41, 0)), False)
sketch2.addGeometry(Part.LineSegment(V(200, -41, 0), V(199.5, -15, 0)), False)
sketch2.addGeometry(Part.LineSegment(V(199.5, -15, 0), V(153.5, -15, 0)), False)
sketch2.addGeometry(Part.LineSegment(V(153.5, -15, 0), V(153, -41, 0)), False)
sketch2.addGeometry(Part.LineSegment(V(153, -41, 0), V(150, -41, 0)), False)
sketch2.addGeometry(Part.LineSegment(V(150, -41, 0), V(149.5, -15, 0)), False)
sketch2.addGeometry(Part.LineSegment(V(149.5, -15, 0), V(103.5, -15, 0)), False)
sketch2.addGeometry(Part.LineSegment(V(103.5, -15, 0), V(103, -41, 0)), False)
sketch2.addGeometry(Part.LineSegment(V(103, -41, 0), V(100, -41, 0)), False)
sketch2.addGeometry(Part.LineSegment(V(100, -41, 0), V(99.5, -15, 0)), False)
sketch2.addGeometry(Part.LineSegment(V(99.5, -15, 0), V(53.5, -15, 0)), False)
sketch2.addGeometry(Part.LineSegment(V(53.5, -15, 0), V(53, -41, 0)), False)
sketch2.addGeometry(Part.LineSegment(V(53, -41, 0), V(50, -41, 0)), False)
sketch2.addGeometry(Part.LineSegment(V(50, -41, 0), V(49.5, -15, 0)), False)
sketch2.addGeometry(Part.LineSegment(V(49.5, -15, 0), V(0, -15, 0)), False)
sketch2.addConstraint(Sketcher.Constraint("Coincident", 0, 2, 1, 1))
sketch2.addConstraint(Sketcher.Constraint("Coincident", 1, 2, 2, 1))
sketch2.addConstraint(Sketcher.Constraint("Coincident", 2, 2, 3, 1))
sketch2.addConstraint(Sketcher.Constraint("Coincident", 3, 2, 4, 1))
sketch2.addConstraint(Sketcher.Constraint("Coincident", 4, 2, 5, 1))
sketch2.addConstraint(Sketcher.Constraint("Coincident", 5, 2, 6, 1))
sketch2.addConstraint(Sketcher.Constraint("Coincident", 6, 2, 7, 1))
sketch2.addConstraint(Sketcher.Constraint("Coincident", 7, 2, 8, 1))
sketch2.addConstraint(Sketcher.Constraint("Coincident", 8, 2, 9, 1))
sketch2.addConstraint(Sketcher.Constraint("Coincident", 9, 2, 10, 1))
sketch2.addConstraint(Sketcher.Constraint("Coincident", 10, 2, 11, 1))
sketch2.addConstraint(Sketcher.Constraint("Coincident", 11, 2, 12, 1))
sketch2.addConstraint(Sketcher.Constraint("Coincident", 12, 2, 13, 1))
sketch2.addConstraint(Sketcher.Constraint("Coincident", 13, 2, 14, 1))
sketch2.addConstraint(Sketcher.Constraint("Coincident", 14, 2, 15, 1))
sketch2.addConstraint(Sketcher.Constraint("Coincident", 15, 2, 16, 1))
sketch2.addConstraint(Sketcher.Constraint("Coincident", 16, 2, 17, 1))
sketch2.addConstraint(Sketcher.Constraint("Coincident", 17, 2, 18, 1))
sketch2.addConstraint(Sketcher.Constraint("Coincident", 18, 2, 19, 1))
sketch2.addConstraint(Sketcher.Constraint("Coincident", 19, 2, 20, 1))
sketch2.addConstraint(Sketcher.Constraint("Coincident", 20, 2, 21, 1))
sketch2.addConstraint(Sketcher.Constraint("Coincident", 21, 2, 22, 1))
sketch2.addConstraint(Sketcher.Constraint("Coincident", 22, 2, 23, 1))
sketch2.addConstraint(Sketcher.Constraint("Coincident", 23, 2, 24, 1))
sketch2.addConstraint(Sketcher.Constraint("Coincident", 24, 2, 25, 1))
sketch2.addConstraint(Sketcher.Constraint("Coincident", 25, 2, 26, 1))
sketch2.addConstraint(Sketcher.Constraint("Coincident", 26, 2, 27, 1))
sketch2.addConstraint(Sketcher.Constraint("Coincident", 27, 2, 28, 1))
sketch2.addConstraint(Sketcher.Constraint("Coincident", 28, 2, 29, 1))
sketch2.addConstraint(Sketcher.Constraint("Coincident", 29, 2, 30, 1))
sketch2.addConstraint(Sketcher.Constraint("Coincident", 30, 2, 31, 1))
sketch2.addConstraint(Sketcher.Constraint("Coincident", 31, 2, 32, 1))
sketch2.addConstraint(Sketcher.Constraint("Coincident", 32, 2, 33, 1))
sketch2.addConstraint(Sketcher.Constraint("Coincident", 33, 2, 34, 1))
sketch2.addConstraint(Sketcher.Constraint("Coincident", 34, 2, 35, 1))
sketch2.addConstraint(Sketcher.Constraint("Coincident", 35, 2, 36, 1))
sketch2.addConstraint(Sketcher.Constraint("Coincident", 36, 2, 37, 1))
sketch2.addConstraint(Sketcher.Constraint("Coincident", 37, 2, 38, 1))
sketch2.addConstraint(Sketcher.Constraint("Coincident", 38, 2, 39, 1))
sketch2.addConstraint(Sketcher.Constraint("Coincident", 39, 2, 40, 1))
sketch2.addConstraint(Sketcher.Constraint("Coincident", 40, 2, 41, 1))
sketch2.addConstraint(Sketcher.Constraint("Coincident", 41, 2, 42, 1))
sketch2.addConstraint(Sketcher.Constraint("Coincident", 42, 2, 43, 1))
sketch2.addConstraint(Sketcher.Constraint("Coincident", 43, 2, 44, 1))
sketch2.addConstraint(Sketcher.Constraint("Coincident", 44, 2, 45, 1))
sketch2.addConstraint(Sketcher.Constraint("Coincident", 45, 2, 46, 1))
sketch2.addConstraint(Sketcher.Constraint("Coincident", 46, 2, 47, 1))
sketch2.addConstraint(Sketcher.Constraint("Coincident", 47, 2, 48, 1))
sketch2.addConstraint(Sketcher.Constraint("Coincident", 48, 2, 49, 1))
sketch2.addConstraint(Sketcher.Constraint("Coincident", 49, 2, 50, 1))
sketch2.addConstraint(Sketcher.Constraint("Coincident", 50, 2, 51, 1))
sketch2.addConstraint(Sketcher.Constraint("Coincident", 51, 2, 0, 1))
sketch2.addConstraint(Sketcher.Constraint("Vertical", 0))
sketch2.addConstraint(Sketcher.Constraint("Horizontal", 1))
sketch2.addConstraint(Sketcher.Constraint("Vertical", 2))
sketch2.addConstraint(Sketcher.Constraint("Horizontal", 3))
sketch2.addConstraint(Sketcher.Constraint("Horizontal", 5))
sketch2.addConstraint(Sketcher.Constraint("Horizontal", 7))
sketch2.addConstraint(Sketcher.Constraint("Horizontal", 9))
sketch2.addConstraint(Sketcher.Constraint("Horizontal", 11))
sketch2.addConstraint(Sketcher.Constraint("Horizontal", 13))
sketch2.addConstraint(Sketcher.Constraint("Horizontal", 15))
sketch2.addConstraint(Sketcher.Constraint("Horizontal", 17))
sketch2.addConstraint(Sketcher.Constraint("Horizontal", 19))
sketch2.addConstraint(Sketcher.Constraint("Horizontal", 21))
sketch2.addConstraint(Sketcher.Constraint("Horizontal", 23))
sketch2.addConstraint(Sketcher.Constraint("Horizontal", 25))
sketch2.addConstraint(Sketcher.Constraint("Horizontal", 27))
sketch2.addConstraint(Sketcher.Constraint("Horizontal", 29))
sketch2.addConstraint(Sketcher.Constraint("Horizontal", 31))
sketch2.addConstraint(Sketcher.Constraint("Horizontal", 33))
sketch2.addConstraint(Sketcher.Constraint("Horizontal", 35))
sketch2.addConstraint(Sketcher.Constraint("Horizontal", 37))
sketch2.addConstraint(Sketcher.Constraint("Horizontal", 39))
sketch2.addConstraint(Sketcher.Constraint("Horizontal", 41))
sketch2.addConstraint(Sketcher.Constraint("Horizontal", 43))
sketch2.addConstraint(Sketcher.Constraint("Horizontal", 45))
sketch2.addConstraint(Sketcher.Constraint("Horizontal", 47))
sketch2.addConstraint(Sketcher.Constraint("Horizontal", 49))
sketch2.addConstraint(Sketcher.Constraint("Horizontal", 51))
sketch2.addConstraint(Sketcher.Constraint("PointOnObject", 0, 2, -2))
sketch2.addConstraint(Sketcher.Constraint("Parallel", 4, 8))
sketch2.addConstraint(Sketcher.Constraint("Parallel", 6, 10))
sketch2.addConstraint(Sketcher.Constraint("Parallel", 8, 12))
sketch2.addConstraint(Sketcher.Constraint("Parallel", 10, 14))
sketch2.addConstraint(Sketcher.Constraint("Parallel", 12, 16))
sketch2.addConstraint(Sketcher.Constraint("Parallel", 14, 18))
sketch2.addConstraint(Sketcher.Constraint("Parallel", 16, 20))
sketch2.addConstraint(Sketcher.Constraint("Parallel", 18, 22))
sketch2.addConstraint(Sketcher.Constraint("Parallel", 20, 24))
sketch2.addConstraint(Sketcher.Constraint("Parallel", 22, 26))
sketch2.addConstraint(Sketcher.Constraint("Parallel", 24, 28))
sketch2.addConstraint(Sketcher.Constraint("Parallel", 26, 30))
sketch2.addConstraint(Sketcher.Constraint("Parallel", 28, 32))
sketch2.addConstraint(Sketcher.Constraint("Parallel", 30, 34))
sketch2.addConstraint(Sketcher.Constraint("Parallel", 32, 36))
sketch2.addConstraint(Sketcher.Constraint("Parallel", 34, 38))
sketch2.addConstraint(Sketcher.Constraint("Parallel", 36, 40))
sketch2.addConstraint(Sketcher.Constraint("Parallel", 38, 42))
sketch2.addConstraint(Sketcher.Constraint("Parallel", 40, 44))
sketch2.addConstraint(Sketcher.Constraint("Parallel", 42, 46))
sketch2.addConstraint(Sketcher.Constraint("Parallel", 44, 48))
sketch2.addConstraint(Sketcher.Constraint("Parallel", 46, 50))
sketch2.addConstraint(Sketcher.Constraint("Horizontal", 3, 2, 6, 2))
sketch2.addConstraint(Sketcher.Constraint("Horizontal", 5, 2, 8, 2))
sketch2.addConstraint(Sketcher.Constraint("Horizontal", 7, 2, 10, 2))
sketch2.addConstraint(Sketcher.Constraint("Horizontal", 9, 2, 12, 2))
sketch2.addConstraint(Sketcher.Constraint("Horizontal", 11, 2, 14, 2))
sketch2.addConstraint(Sketcher.Constraint("Horizontal", 13, 2, 16, 2))
sketch2.addConstraint(Sketcher.Constraint("Horizontal", 15, 2, 18, 2))
sketch2.addConstraint(Sketcher.Constraint("Horizontal", 17, 2, 20, 2))
sketch2.addConstraint(Sketcher.Constraint("Horizontal", 19, 2, 22, 2))
sketch2.addConstraint(Sketcher.Constraint("Horizontal", 21, 2, 24, 2))
sketch2.addConstraint(Sketcher.Constraint("Horizontal", 23, 2, 26, 2))
sketch2.addConstraint(Sketcher.Constraint("Horizontal", 25, 2, 28, 2))
sketch2.addConstraint(Sketcher.Constraint("Horizontal", 27, 2, 30, 2))
sketch2.addConstraint(Sketcher.Constraint("Horizontal", 29, 2, 32, 2))
sketch2.addConstraint(Sketcher.Constraint("Horizontal", 31, 2, 34, 2))
sketch2.addConstraint(Sketcher.Constraint("Horizontal", 33, 2, 36, 2))
sketch2.addConstraint(Sketcher.Constraint("Horizontal", 35, 2, 38, 2))
sketch2.addConstraint(Sketcher.Constraint("Horizontal", 37, 2, 40, 2))
sketch2.addConstraint(Sketcher.Constraint("Horizontal", 39, 2, 42, 2))
sketch2.addConstraint(Sketcher.Constraint("Horizontal", 41, 2, 44, 2))
sketch2.addConstraint(Sketcher.Constraint("Horizontal", 43, 2, 46, 2))
sketch2.addConstraint(Sketcher.Constraint("Horizontal", 45, 2, 48, 2))
sketch2.addConstraint(Sketcher.Constraint("Horizontal", 47, 2, 50, 2))
sketch2.addConstraint(Sketcher.Constraint("Equal", 5, 9))
sketch2.addConstraint(Sketcher.Constraint("Equal", 7, 11))
sketch2.addConstraint(Sketcher.Constraint("Equal", 9, 13))
sketch2.addConstraint(Sketcher.Constraint("Equal", 11, 15))
sketch2.addConstraint(Sketcher.Constraint("Equal", 13, 17))
sketch2.addConstraint(Sketcher.Constraint("Equal", 15, 19))
sketch2.addConstraint(Sketcher.Constraint("Equal", 17, 21))
sketch2.addConstraint(Sketcher.Constraint("Equal", 19, 23))
sketch2.addConstraint(Sketcher.Constraint("Equal", 21, 25))
sketch2.addConstraint(Sketcher.Constraint("Equal", 23, 27))
sketch2.addConstraint(Sketcher.Constraint("Equal", 25, 29))
sketch2.addConstraint(Sketcher.Constraint("Equal", 27, 31))
sketch2.addConstraint(Sketcher.Constraint("Equal", 29, 33))
sketch2.addConstraint(Sketcher.Constraint("Equal", 31, 35))
sketch2.addConstraint(Sketcher.Constraint("Equal", 33, 37))
sketch2.addConstraint(Sketcher.Constraint("Equal", 35, 39))
sketch2.addConstraint(Sketcher.Constraint("Equal", 37, 41))
sketch2.addConstraint(Sketcher.Constraint("Equal", 39, 43))
sketch2.addConstraint(Sketcher.Constraint("Equal", 41, 45))
sketch2.addConstraint(Sketcher.Constraint("Equal", 43, 47))
sketch2.addConstraint(Sketcher.Constraint("Equal", 45, 49))
sketch2.addConstraint(Sketcher.Constraint("Equal", 3, 51))
sketch2.addConstraint(Sketcher.Constraint("Equal", 4, 6))
sketch2.addConstraint(Sketcher.Constraint("DistanceX", 1, 1, 1, 2, Q("653 mm")))
sketch2.addConstraint(Sketcher.Constraint("DistanceX", 5, 2, 5, 1, Q("3 mm")))
sketch2.addConstraint(Sketcher.Constraint("DistanceX", 7, 2, 7, 1, Q("46 mm")))
sketch2.addConstraint(Sketcher.Constraint("DistanceY", 0, 2, 0, 1, Q("50 mm")))
sketch2.addConstraint(Sketcher.Constraint("DistanceX", 3, 2, 3, 1, Q("49.5 mm")))
sketch2.addConstraint(Sketcher.Constraint("DistanceY", 0, 2, -1, 1, Q("65 mm")))
sketch2.addConstraint(Sketcher.Constraint("DistanceY", 4, 2, -1, 1, Q("41 mm")))
pad2 = body2.newObject("PartDesign::Pad", "Pad001")
pad2.Profile = sketch2
pad2.Length = 3

doc.recompute()
